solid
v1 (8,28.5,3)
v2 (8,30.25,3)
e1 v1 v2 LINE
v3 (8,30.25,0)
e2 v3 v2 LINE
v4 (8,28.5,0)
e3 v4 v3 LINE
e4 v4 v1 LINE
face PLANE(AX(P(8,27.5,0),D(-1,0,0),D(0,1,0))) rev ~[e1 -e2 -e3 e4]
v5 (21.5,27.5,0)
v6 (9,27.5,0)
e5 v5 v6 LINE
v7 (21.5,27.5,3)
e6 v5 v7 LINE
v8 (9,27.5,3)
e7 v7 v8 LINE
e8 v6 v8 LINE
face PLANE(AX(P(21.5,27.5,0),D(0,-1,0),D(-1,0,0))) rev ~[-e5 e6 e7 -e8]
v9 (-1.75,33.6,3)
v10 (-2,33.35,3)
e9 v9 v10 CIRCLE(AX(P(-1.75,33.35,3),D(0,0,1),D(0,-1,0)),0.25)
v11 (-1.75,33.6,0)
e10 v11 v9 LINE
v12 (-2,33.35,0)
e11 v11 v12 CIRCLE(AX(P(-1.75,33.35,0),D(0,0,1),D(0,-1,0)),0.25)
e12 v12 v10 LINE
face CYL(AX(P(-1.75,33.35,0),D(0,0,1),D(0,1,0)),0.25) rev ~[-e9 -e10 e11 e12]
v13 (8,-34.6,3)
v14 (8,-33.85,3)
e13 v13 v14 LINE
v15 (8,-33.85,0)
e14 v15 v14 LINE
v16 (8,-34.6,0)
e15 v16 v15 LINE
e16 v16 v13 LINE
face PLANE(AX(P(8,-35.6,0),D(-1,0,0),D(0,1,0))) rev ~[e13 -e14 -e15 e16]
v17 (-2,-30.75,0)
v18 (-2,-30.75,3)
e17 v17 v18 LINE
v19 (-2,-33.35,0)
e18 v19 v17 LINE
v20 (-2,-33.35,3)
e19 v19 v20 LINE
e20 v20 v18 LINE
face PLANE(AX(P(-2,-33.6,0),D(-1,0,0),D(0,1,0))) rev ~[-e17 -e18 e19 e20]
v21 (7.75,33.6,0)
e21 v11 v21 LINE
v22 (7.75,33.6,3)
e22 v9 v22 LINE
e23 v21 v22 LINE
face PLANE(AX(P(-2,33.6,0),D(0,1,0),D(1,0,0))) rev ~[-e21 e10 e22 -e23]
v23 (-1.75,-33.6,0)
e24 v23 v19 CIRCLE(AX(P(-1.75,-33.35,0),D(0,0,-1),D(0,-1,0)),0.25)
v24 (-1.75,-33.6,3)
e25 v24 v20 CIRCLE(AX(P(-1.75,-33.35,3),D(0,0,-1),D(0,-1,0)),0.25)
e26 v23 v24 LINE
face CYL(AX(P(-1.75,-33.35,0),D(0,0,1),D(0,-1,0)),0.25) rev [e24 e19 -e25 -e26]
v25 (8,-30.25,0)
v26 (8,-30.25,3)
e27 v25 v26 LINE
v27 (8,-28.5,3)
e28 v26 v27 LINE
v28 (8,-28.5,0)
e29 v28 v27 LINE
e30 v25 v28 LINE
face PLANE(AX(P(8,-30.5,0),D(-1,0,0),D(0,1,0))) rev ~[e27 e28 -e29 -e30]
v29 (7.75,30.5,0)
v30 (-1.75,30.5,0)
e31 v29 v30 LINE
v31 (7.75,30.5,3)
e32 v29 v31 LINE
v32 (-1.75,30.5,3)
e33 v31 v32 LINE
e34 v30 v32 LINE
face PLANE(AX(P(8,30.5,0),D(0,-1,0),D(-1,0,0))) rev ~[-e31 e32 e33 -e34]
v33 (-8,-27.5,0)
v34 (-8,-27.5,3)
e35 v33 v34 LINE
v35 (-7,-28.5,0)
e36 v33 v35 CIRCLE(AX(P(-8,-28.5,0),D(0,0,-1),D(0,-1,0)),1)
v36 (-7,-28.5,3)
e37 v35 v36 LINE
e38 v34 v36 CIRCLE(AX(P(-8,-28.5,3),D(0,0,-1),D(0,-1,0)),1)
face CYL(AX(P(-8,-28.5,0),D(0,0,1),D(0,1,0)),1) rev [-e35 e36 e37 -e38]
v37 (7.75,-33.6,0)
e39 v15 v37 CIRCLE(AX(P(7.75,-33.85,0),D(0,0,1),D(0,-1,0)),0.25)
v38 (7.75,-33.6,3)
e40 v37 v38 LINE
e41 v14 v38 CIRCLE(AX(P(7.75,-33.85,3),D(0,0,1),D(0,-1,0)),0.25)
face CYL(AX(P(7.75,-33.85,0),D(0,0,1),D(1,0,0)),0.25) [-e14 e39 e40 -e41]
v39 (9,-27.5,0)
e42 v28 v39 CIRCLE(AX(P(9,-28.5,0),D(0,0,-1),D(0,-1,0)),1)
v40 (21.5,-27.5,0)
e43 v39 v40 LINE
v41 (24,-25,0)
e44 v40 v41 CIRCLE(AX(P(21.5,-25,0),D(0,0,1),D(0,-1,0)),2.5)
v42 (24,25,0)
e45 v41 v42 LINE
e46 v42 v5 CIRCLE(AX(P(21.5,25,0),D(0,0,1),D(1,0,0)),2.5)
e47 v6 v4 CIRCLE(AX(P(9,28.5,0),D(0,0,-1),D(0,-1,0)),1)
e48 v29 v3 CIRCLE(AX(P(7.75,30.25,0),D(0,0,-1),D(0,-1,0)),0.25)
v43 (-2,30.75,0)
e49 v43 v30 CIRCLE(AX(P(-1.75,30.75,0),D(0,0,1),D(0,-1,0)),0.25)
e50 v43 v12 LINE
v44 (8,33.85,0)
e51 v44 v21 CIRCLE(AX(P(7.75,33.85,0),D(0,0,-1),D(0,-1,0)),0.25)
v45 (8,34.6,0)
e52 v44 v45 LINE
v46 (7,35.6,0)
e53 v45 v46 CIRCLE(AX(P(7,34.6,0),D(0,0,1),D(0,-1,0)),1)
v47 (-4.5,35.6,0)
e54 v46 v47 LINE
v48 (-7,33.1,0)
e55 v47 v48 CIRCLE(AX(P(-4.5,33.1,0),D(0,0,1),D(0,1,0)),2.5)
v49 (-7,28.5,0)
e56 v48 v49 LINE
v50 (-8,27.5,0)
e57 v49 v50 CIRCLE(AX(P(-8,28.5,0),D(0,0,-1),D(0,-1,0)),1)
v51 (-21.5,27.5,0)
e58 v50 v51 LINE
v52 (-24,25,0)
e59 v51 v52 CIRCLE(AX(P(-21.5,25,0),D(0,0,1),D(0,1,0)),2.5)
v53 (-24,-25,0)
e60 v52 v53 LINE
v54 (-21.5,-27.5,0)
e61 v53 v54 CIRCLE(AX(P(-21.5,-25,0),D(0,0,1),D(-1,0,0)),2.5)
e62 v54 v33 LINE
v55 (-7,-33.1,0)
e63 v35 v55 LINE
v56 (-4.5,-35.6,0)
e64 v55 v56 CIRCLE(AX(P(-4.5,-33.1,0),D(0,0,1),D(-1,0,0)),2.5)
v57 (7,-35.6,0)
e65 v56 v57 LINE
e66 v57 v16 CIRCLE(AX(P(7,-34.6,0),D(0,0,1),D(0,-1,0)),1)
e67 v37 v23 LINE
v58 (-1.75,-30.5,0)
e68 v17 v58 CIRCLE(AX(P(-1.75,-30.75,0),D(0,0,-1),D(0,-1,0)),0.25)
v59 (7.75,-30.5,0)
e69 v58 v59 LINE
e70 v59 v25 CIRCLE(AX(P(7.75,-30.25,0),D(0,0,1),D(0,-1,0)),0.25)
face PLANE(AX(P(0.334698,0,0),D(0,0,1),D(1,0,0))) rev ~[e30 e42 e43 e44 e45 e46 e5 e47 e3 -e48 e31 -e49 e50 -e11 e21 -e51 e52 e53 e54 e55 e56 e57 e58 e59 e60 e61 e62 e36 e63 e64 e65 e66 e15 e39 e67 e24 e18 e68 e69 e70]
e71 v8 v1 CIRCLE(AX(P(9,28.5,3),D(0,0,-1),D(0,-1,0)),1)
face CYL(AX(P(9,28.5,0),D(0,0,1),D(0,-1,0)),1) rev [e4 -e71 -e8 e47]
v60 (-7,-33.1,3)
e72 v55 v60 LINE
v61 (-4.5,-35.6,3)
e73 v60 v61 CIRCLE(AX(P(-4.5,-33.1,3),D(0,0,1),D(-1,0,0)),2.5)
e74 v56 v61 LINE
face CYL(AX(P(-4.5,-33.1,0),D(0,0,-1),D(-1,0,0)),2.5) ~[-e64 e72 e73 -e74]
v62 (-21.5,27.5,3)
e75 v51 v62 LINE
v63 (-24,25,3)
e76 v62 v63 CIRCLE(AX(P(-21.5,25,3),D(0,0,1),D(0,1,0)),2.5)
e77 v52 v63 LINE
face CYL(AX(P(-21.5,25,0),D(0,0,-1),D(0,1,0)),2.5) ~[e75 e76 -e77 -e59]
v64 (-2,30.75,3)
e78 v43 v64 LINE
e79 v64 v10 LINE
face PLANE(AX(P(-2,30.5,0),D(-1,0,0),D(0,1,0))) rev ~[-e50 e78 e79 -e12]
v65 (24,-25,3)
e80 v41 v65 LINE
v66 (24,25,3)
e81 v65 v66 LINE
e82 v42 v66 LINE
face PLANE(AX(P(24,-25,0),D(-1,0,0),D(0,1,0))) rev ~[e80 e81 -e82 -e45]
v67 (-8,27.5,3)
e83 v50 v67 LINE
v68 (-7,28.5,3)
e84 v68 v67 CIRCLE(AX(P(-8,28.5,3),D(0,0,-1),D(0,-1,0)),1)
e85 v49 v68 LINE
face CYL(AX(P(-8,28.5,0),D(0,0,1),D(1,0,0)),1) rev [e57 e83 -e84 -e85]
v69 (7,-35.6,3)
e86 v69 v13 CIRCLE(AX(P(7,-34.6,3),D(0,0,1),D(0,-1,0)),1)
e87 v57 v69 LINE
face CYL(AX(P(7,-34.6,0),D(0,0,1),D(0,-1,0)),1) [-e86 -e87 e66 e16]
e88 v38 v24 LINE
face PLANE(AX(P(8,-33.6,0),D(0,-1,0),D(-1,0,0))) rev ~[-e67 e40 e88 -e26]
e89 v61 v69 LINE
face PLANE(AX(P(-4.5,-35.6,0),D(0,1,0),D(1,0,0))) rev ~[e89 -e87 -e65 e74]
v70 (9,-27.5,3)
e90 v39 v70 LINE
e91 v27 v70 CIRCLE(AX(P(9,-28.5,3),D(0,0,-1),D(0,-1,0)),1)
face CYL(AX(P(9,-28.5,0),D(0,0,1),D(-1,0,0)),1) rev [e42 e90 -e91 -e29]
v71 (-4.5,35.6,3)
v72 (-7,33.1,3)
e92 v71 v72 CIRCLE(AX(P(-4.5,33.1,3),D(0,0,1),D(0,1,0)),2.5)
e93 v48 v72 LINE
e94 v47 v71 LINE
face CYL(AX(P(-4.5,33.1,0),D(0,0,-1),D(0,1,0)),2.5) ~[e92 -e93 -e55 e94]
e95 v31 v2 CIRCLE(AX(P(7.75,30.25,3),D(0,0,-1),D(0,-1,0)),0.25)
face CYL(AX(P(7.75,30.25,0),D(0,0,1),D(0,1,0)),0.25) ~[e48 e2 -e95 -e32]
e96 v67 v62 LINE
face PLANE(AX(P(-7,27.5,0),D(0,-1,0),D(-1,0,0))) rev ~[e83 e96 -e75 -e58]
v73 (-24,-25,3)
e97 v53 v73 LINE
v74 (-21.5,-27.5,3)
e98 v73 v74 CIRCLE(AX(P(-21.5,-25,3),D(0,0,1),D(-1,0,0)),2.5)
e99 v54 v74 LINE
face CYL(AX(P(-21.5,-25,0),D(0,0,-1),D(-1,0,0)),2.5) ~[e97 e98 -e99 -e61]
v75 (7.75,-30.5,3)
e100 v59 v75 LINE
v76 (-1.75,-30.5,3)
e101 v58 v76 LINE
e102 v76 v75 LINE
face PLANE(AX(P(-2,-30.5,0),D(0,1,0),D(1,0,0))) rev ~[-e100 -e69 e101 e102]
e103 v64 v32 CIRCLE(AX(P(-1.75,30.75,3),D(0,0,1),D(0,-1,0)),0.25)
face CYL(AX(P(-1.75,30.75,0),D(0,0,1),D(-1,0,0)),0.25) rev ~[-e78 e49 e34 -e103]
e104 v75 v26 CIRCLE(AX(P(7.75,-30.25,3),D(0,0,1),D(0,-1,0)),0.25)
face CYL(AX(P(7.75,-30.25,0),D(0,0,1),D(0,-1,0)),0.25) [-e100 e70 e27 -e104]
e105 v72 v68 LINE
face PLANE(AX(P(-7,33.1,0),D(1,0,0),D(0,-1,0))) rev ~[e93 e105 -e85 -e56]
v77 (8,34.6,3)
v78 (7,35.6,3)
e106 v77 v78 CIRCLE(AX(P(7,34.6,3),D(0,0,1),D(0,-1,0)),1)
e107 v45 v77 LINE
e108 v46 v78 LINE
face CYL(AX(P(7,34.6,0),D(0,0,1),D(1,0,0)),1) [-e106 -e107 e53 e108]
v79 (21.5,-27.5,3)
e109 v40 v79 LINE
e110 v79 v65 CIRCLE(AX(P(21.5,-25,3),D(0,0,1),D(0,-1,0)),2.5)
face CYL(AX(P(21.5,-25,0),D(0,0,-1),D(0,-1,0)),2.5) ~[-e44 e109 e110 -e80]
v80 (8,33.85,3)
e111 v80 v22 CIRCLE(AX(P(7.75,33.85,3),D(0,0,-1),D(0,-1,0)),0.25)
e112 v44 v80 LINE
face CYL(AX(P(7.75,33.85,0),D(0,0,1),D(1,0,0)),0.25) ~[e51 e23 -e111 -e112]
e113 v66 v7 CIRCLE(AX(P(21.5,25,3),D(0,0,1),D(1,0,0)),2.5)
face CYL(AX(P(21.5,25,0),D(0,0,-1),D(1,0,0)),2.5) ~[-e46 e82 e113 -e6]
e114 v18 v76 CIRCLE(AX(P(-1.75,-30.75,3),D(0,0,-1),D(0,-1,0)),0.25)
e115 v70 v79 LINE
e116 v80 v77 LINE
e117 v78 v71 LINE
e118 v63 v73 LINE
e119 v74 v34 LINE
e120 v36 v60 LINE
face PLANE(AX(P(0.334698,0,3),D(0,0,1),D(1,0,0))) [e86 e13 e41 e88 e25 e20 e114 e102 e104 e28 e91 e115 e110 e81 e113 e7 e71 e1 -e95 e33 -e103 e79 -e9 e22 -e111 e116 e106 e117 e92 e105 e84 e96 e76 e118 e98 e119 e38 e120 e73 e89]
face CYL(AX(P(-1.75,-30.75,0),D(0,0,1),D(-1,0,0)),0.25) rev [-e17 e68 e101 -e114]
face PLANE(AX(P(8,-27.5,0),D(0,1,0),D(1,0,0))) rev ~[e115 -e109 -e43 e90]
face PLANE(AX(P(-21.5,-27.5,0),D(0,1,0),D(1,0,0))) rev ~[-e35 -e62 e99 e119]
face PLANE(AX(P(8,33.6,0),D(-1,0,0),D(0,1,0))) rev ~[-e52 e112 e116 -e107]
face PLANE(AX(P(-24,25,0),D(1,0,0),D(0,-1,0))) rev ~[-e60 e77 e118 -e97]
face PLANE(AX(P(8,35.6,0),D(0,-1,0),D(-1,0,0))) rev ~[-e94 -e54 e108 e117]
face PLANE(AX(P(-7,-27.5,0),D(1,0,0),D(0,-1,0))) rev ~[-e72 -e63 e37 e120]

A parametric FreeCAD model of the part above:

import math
import FreeCAD as App
import Part
import Sketcher
Q = App.Units.Quantity


def edges_at(feature, points):
    """Names of the edges that pass closest to the given points."""
    edges = feature.Shape.Edges
    near = lambda p: min(range(len(edges)), key=lambda i: edges[i].distToShape(Part.Vertex(*p))[0])
    return sorted({f"Edge{near(p) + 1}" for p in points})

doc = App.newDocument("Part")
body = doc.addObject("PartDesign::Body", "Body")

sketch1 = body.newObject("Sketcher::SketchObject", "Sketch")
sketch1.AttachmentSupport = (doc.getObject("XY_Plane"), [""])
sketch1.MapMode = "FlatFace"
sketch1.addGeometry([
    Part.LineSegment(App.Vector(-24, 25, 0), App.Vector(-24, -25, 0)),
    Part.ArcOfCircle(Part.Circle(App.Vector(-21.5, -25, 0), App.Vector(0, 0, 1), 2.5), math.radians(180), math.radians(270)),
    Part.LineSegment(App.Vector(-21.5, -27.5, 0), App.Vector(-7, -27.5, 0)),
    Part.LineSegment(App.Vector(-7, -27.5, 0), App.Vector(-7, -33.1, 0)),
    Part.ArcOfCircle(Part.Circle(App.Vector(-4.5, -33.1, 0), App.Vector(0, 0, 1), 2.5), math.radians(180), math.radians(270)),
    Part.LineSegment(App.Vector(-4.5, -35.6, 0), App.Vector(8, -35.6, 0)),
    Part.LineSegment(App.Vector(8, -35.6, 0), App.Vector(8, -33.6, 0)),
    Part.LineSegment(App.Vector(8, -33.6, 0), App.Vector(-2, -33.6, 0)),
    Part.LineSegment(App.Vector(-2, -33.6, 0), App.Vector(-2, -30.5, 0)),
    Part.LineSegment(App.Vector(-2, -30.5, 0), App.Vector(8, -30.5, 0)),
    Part.LineSegment(App.Vector(8, -30.5, 0), App.Vector(8, -27.5, 0)),
    Part.LineSegment(App.Vector(8, -27.5, 0), App.Vector(21.5, -27.5, 0)),
    Part.ArcOfCircle(Part.Circle(App.Vector(21.5, -25, 0), App.Vector(0, 0, 1), 2.5), math.radians(-90), math.radians(0)),
    Part.LineSegment(App.Vector(24, -25, 0), App.Vector(24, 25, 0)),
    Part.ArcOfCircle(Part.Circle(App.Vector(21.5, 25, 0), App.Vector(0, 0, 1), 2.5), math.radians(0), math.radians(90)),
    Part.LineSegment(App.Vector(21.5, 27.5, 0), App.Vector(8, 27.5, 0)),
    Part.LineSegment(App.Vector(8, 27.5, 0), App.Vector(8, 30.5, 0)),
    Part.LineSegment(App.Vector(8, 30.5, 0), App.Vector(-2, 30.5, 0)),
    Part.LineSegment(App.Vector(-2, 30.5, 0), App.Vector(-2, 33.6, 0)),
    Part.LineSegment(App.Vector(-2, 33.6, 0), App.Vector(8, 33.6, 0)),
    Part.LineSegment(App.Vector(8, 33.6, 0), App.Vector(8, 35.6, 0)),
    Part.LineSegment(App.Vector(8, 35.6, 0), App.Vector(-4.5, 35.6, 0)),
    Part.ArcOfCircle(Part.Circle(App.Vector(-4.5, 33.1, 0), App.Vector(0, 0, 1), 2.5), math.radians(90), math.radians(180)),
    Part.LineSegment(App.Vector(-7, 33.1, 0), App.Vector(-7, 27.5, 0)),
    Part.LineSegment(App.Vector(-7, 27.5, 0), App.Vector(-21.5, 27.5, 0)),
    Part.ArcOfCircle(Part.Circle(App.Vector(-21.5, 25, 0), App.Vector(0, 0, 1), 2.5), math.radians(90), math.radians(180)),
], False)
sketch1.addConstraint([
    Sketcher.Constraint("Tangent", 0, 2, 1, 1),
    Sketcher.Constraint("Tangent", 1, 2, 2, 1),
    Sketcher.Constraint("Coincident", 2, 2, 3, 1),
    Sketcher.Constraint("Tangent", 3, 2, 4, 1),
    Sketcher.Constraint("Tangent", 4, 2, 5, 1),
    Sketcher.Constraint("Coincident", 5, 2, 6, 1),
    Sketcher.Constraint("Coincident", 6, 2, 7, 1),
    Sketcher.Constraint("Coincident", 7, 2, 8, 1),
    Sketcher.Constraint("Coincident", 8, 2, 9, 1),
    Sketcher.Constraint("Coincident", 9, 2, 10, 1),
    Sketcher.Constraint("Coincident", 10, 2, 11, 1),
    Sketcher.Constraint("Tangent", 11, 2, 12, 1),
    Sketcher.Constraint("Tangent", 12, 2, 13, 1),
    Sketcher.Constraint("Tangent", 13, 2, 14, 1),
    Sketcher.Constraint("Tangent", 14, 2, 15, 1),
    Sketcher.Constraint("Coincident", 15, 2, 16, 1),
    Sketcher.Constraint("Coincident", 16, 2, 17, 1),
    Sketcher.Constraint("Coincident", 17, 2, 18, 1),
    Sketcher.Constraint("Coincident", 18, 2, 19, 1),
    Sketcher.Constraint("Coincident", 19, 2, 20, 1),
    Sketcher.Constraint("Coincident", 20, 2, 21, 1),
    Sketcher.Constraint("Tangent", 21, 2, 22, 1),
    Sketcher.Constraint("Tangent", 22, 2, 23, 1),
    Sketcher.Constraint("Coincident", 23, 2, 24, 1),
    Sketcher.Constraint("Tangent", 24, 2, 25, 1),
    Sketcher.Constraint("Tangent", 25, 2, 0, 1),
    Sketcher.Constraint("Vertical", 0),
    Sketcher.Constraint("Horizontal", 2),
    Sketcher.Constraint("Vertical", 3),
    Sketcher.Constraint("Horizontal", 5),
    Sketcher.Constraint("Vertical", 6),
    Sketcher.Constraint("Horizontal", 7),
    Sketcher.Constraint("Vertical", 8),
    Sketcher.Constraint("Horizontal", 9),
    Sketcher.Constraint("Vertical", 10),
    Sketcher.Constraint("Horizontal", 11),
    Sketcher.Constraint("Vertical", 13),
    Sketcher.Constraint("Horizontal", 15),
    Sketcher.Constraint("Vertical", 16),
    Sketcher.Constraint("Horizontal", 17),
    Sketcher.Constraint("Vertical", 18),
    Sketcher.Constraint("Horizontal", 19),
    Sketcher.Constraint("Vertical", 20),
    Sketcher.Constraint("Horizontal", 21),
    Sketcher.Constraint("Vertical", 23),
    Sketcher.Constraint("Horizontal", 24),
    Sketcher.Constraint("Equal", 1, 4),
    Sketcher.Constraint("Equal", 4, 12),
    Sketcher.Constraint("Equal", 12, 14),
    Sketcher.Constraint("Equal", 14, 22),
    Sketcher.Constraint("Equal", 22, 25),
    Sketcher.Constraint("Symmetric", 1, 3, 14, 3, -1, 1),
    Sketcher.Constraint("Symmetric", 4, 3, 22, 3, -1),
    Sketcher.Constraint("Symmetric", 10, 2, 15, 2, -1),
    Sketcher.Constraint("Symmetric", 8, 2, 17, 2, -1),
    Sketcher.Constraint("Symmetric", 6, 2, 19, 2, -1),
    Sketcher.Constraint("Horizontal", 14, 3, 25, 3),
    Sketcher.Constraint("Vertical", 6, 2, 9, 2),
    Sketcher.Constraint("Radius", 1, Q("2.5 mm")),
    Sketcher.Constraint("DistanceX", 7, 2, 7, 1, Q("10 mm")),
    Sketcher.Constraint("DistanceY", 0, 2, 0, 1, Q("50 mm")),
    Sketcher.Constraint("DistanceY", 6, 1, 6, 2, Q("2 mm")),
    Sketcher.Constraint("DistanceY", 10, 1, 10, 2, Q("3 mm")),
    Sketcher.Constraint("DistanceX", 2, 1, 2, 2, Q("14.5 mm")),
    Sketcher.Constraint("DistanceX", 5, 1, 5, 2, Q("12.5 mm")),
    Sketcher.Constraint("DistanceX", 11, 1, 11, 2, Q("13.5 mm")),
    Sketcher.Constraint("DistanceY", 3, 2, 3, 1, Q("5.6 mm")),
])
pad1 = body.newObject("PartDesign::Pad", "Pad")
pad1.Profile = sketch1
pad1.Length = 3
doc.recompute()

fillet = body.newObject("PartDesign::Fillet", "Fillet")
fillet.Base = (pad1, edges_at(pad1, [
    (-7, 27.5, 1.5),
    (8, 35.6, 1.5),
    (8, 27.5, 1.5),
    (8, -27.5, 1.5),
    (8, -35.6, 1.5),
    (-7, -27.5, 1.5),
]))
fillet.Radius = 1
doc.recompute()

fillet2 = body.newObject("PartDesign::Fillet", "Fillet001")
fillet2.Base = (fillet, edges_at(fillet, [
    (8, 33.6, 1.5),
    (-2, 33.6, 1.5),
    (-2, 30.5, 1.5),
    (8, 30.5, 1.5),
    (8, -30.5, 1.5),
    (-2, -30.5, 1.5),
    (-2, -33.6, 1.5),
    (8, -33.6, 1.5),
]))
fillet2.Radius = 0.25

doc.recompute()
